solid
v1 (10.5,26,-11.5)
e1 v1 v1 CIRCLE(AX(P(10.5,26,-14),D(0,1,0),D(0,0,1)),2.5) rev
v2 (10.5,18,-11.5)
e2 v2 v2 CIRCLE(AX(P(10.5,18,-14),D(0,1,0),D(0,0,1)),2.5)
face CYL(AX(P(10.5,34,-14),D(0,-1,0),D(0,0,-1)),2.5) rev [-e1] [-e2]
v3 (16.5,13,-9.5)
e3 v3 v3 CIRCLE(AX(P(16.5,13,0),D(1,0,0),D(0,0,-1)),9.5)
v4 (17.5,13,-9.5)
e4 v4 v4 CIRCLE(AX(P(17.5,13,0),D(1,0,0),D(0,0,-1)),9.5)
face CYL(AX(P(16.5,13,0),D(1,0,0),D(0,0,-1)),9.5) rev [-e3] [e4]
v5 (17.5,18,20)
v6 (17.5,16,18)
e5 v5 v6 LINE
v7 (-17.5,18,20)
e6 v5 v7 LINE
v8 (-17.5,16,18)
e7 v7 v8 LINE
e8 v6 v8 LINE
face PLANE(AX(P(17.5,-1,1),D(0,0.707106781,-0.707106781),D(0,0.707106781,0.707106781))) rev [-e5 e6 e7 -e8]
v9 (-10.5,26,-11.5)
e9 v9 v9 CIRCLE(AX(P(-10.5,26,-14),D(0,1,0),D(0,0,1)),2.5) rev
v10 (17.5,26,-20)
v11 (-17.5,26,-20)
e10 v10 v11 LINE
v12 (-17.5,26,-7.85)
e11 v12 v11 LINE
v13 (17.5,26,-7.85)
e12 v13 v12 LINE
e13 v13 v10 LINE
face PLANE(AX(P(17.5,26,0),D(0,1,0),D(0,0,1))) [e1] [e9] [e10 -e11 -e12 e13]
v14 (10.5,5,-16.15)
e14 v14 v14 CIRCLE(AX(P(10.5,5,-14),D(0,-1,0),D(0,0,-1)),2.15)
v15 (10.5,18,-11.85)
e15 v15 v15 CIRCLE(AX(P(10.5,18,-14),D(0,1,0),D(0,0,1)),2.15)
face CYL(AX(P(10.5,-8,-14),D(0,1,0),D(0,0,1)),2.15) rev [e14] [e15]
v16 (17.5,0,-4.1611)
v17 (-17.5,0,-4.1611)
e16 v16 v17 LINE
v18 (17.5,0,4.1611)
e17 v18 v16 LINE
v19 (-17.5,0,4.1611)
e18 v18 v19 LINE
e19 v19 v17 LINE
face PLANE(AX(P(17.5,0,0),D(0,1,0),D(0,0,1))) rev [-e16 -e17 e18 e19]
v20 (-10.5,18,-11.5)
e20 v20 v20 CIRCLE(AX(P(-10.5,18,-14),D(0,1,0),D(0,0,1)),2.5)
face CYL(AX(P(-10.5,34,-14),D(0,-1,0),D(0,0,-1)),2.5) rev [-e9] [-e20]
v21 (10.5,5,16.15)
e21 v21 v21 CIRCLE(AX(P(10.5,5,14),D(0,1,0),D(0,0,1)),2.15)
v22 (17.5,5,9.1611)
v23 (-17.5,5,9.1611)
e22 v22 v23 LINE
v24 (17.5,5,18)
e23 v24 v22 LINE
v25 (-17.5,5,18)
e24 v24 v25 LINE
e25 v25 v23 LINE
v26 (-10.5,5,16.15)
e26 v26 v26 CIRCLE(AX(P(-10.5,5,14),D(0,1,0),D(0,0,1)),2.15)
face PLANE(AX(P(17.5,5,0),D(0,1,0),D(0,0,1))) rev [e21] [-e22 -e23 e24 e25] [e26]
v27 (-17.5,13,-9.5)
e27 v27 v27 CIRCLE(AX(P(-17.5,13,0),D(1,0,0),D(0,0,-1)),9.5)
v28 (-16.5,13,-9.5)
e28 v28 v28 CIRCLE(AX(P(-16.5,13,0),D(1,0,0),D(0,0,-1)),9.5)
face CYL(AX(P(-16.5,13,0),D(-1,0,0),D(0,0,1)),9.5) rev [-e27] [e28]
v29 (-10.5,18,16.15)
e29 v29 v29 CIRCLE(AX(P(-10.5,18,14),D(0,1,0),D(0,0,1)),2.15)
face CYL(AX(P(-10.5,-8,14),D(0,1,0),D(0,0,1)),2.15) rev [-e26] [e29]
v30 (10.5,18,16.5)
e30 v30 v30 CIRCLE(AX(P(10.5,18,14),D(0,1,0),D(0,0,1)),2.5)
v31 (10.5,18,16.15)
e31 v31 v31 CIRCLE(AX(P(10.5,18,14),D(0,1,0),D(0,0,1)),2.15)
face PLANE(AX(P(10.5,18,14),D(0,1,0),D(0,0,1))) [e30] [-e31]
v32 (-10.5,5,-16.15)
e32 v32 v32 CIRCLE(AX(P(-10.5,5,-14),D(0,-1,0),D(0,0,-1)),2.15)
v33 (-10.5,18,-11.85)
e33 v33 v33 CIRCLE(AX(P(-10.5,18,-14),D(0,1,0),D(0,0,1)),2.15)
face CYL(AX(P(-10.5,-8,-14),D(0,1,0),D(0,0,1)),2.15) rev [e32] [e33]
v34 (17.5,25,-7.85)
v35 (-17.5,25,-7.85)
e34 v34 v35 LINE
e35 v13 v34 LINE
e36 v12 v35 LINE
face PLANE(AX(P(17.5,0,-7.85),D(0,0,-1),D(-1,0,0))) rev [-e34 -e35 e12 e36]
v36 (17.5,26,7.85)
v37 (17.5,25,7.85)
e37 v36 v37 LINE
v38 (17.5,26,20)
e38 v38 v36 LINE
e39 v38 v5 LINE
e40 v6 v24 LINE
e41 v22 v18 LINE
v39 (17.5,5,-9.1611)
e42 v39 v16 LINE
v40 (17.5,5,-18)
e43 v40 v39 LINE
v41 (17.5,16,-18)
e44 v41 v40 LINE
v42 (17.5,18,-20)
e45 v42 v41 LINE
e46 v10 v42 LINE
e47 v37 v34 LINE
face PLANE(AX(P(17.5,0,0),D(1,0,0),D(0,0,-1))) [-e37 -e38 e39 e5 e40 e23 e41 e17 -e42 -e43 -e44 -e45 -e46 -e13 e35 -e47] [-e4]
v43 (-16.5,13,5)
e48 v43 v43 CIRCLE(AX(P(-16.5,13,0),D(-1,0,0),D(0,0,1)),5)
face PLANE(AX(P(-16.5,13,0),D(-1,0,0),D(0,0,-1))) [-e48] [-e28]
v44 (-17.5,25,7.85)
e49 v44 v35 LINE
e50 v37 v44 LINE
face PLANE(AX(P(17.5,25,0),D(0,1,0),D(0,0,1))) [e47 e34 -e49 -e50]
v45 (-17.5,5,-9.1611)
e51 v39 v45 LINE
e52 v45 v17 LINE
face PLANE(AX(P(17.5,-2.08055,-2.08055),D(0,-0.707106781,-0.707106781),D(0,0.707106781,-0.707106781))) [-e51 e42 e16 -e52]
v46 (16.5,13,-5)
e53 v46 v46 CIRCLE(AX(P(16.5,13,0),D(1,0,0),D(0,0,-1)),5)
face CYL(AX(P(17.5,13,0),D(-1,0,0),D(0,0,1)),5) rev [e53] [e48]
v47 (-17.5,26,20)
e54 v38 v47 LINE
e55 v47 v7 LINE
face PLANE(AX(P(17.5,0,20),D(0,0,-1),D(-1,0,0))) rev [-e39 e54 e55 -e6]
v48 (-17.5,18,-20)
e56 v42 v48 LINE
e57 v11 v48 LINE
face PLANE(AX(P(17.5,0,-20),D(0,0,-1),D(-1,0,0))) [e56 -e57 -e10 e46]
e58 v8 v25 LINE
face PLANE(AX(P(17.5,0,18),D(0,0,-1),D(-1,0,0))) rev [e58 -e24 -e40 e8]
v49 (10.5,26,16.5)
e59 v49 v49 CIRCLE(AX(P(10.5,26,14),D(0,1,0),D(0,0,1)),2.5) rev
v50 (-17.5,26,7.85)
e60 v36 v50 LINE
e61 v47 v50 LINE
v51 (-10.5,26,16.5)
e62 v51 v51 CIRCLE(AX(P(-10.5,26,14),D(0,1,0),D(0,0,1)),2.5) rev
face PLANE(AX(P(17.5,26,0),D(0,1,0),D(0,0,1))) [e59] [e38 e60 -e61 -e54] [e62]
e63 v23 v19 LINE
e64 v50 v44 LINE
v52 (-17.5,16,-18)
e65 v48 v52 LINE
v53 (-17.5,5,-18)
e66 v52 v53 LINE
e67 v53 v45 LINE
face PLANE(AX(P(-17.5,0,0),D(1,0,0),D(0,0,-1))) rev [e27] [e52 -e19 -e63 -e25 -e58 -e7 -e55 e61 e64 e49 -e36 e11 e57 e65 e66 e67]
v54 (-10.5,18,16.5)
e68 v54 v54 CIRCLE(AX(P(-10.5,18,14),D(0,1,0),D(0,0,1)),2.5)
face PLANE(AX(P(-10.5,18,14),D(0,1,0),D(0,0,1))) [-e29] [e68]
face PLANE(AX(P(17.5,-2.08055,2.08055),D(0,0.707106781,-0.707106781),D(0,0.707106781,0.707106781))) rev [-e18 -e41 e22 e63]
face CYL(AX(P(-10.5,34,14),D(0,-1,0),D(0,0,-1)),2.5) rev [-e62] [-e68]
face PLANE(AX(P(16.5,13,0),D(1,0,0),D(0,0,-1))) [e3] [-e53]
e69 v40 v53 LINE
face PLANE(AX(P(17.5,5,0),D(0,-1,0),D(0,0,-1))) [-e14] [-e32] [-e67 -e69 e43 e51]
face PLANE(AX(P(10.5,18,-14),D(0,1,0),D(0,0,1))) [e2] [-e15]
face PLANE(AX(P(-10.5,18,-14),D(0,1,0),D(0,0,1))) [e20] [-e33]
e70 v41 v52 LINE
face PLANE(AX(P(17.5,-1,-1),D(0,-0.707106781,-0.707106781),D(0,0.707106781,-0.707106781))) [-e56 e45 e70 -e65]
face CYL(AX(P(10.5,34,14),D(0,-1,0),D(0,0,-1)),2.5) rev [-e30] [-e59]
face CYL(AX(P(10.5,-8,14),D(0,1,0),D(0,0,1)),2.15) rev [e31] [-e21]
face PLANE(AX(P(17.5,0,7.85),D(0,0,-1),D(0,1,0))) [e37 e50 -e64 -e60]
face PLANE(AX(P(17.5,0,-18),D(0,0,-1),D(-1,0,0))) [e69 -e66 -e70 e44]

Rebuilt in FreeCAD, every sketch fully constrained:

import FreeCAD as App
import Part
import Sketcher
from FreeCAD import Vector

doc = App.newDocument("Part")
body = doc.addObject("PartDesign::Body", "Body")

sketch1 = body.newObject("Sketcher::SketchObject", "Sketch")
sketch1.AttachmentSupport = (doc.getObject("YZ_Plane"), [""])
sketch1.MapMode = "FlatFace"
sketch1.addGeometry(Part.LineSegment(Vector(26, 7.8, 0), Vector(26, 20, 0)), False)
sketch1.addGeometry(Part.LineSegment(Vector(26, 20, 0), Vector(18, 20, 0)), False)
sketch1.addGeometry(Part.LineSegment(Vector(18, 20, 0), Vector(16, 18, 0)), False)
sketch1.addGeometry(Part.LineSegment(Vector(16, 18, 0), Vector(5, 18, 0)), False)
sketch1.addGeometry(Part.LineSegment(Vector(5, 18, 0), Vector(5, 9.2, 0)), False)
sketch1.addGeometry(Part.LineSegment(Vector(5, 9.2, 0), Vector(0, 4.2, 0)), False)
sketch1.addGeometry(Part.LineSegment(Vector(0, 4.2, 0), Vector(0, -4.2, 0)), False)
sketch1.addGeometry(Part.LineSegment(Vector(0, -4.2, 0), Vector(5, -9.2, 0)), False)
sketch1.addGeometry(Part.LineSegment(Vector(5, -9.2, 0), Vector(5, -18, 0)), False)
sketch1.addGeometry(Part.LineSegment(Vector(5, -18, 0), Vector(16, -18, 0)), False)
sketch1.addGeometry(Part.LineSegment(Vector(16, -18, 0), Vector(18, -20, 0)), False)
sketch1.addGeometry(Part.LineSegment(Vector(18, -20, 0), Vector(26, -20, 0)), False)
sketch1.addGeometry(Part.LineSegment(Vector(26, -20, 0), Vector(26, -7.8, 0)), False)
sketch1.addGeometry(Part.LineSegment(Vector(26, -7.8, 0), Vector(25, -7.8, 0)), False)
sketch1.addGeometry(Part.LineSegment(Vector(25, -7.8, 0), Vector(25, 7.8, 0)), False)
sketch1.addGeometry(Part.LineSegment(Vector(25, 7.8, 0), Vector(26, 7.8, 0)), False)
sketch1.addGeometry(Part.Circle(Vector(13, 0, 0), Vector(0, 0, 1), 5), False)
sketch1.addConstraint(Sketcher.Constraint("Coincident", 0, 2, 1, 1))
sketch1.addConstraint(Sketcher.Constraint("Coincident", 1, 2, 2, 1))
sketch1.addConstraint(Sketcher.Constraint("Coincident", 2, 2, 3, 1))
sketch1.addConstraint(Sketcher.Constraint("Coincident", 3, 2, 4, 1))
sketch1.addConstraint(Sketcher.Constraint("Coincident", 4, 2, 5, 1))
sketch1.addConstraint(Sketcher.Constraint("Coincident", 5, 2, 6, 1))
sketch1.addConstraint(Sketcher.Constraint("Coincident", 6, 2, 7, 1))
sketch1.addConstraint(Sketcher.Constraint("Coincident", 7, 2, 8, 1))
sketch1.addConstraint(Sketcher.Constraint("Coincident", 8, 2, 9, 1))
sketch1.addConstraint(Sketcher.Constraint("Coincident", 9, 2, 10, 1))
sketch1.addConstraint(Sketcher.Constraint("Coincident", 10, 2, 11, 1))
sketch1.addConstraint(Sketcher.Constraint("Coincident", 11, 2, 12, 1))
sketch1.addConstraint(Sketcher.Constraint("Coincident", 12, 2, 13, 1))
sketch1.addConstraint(Sketcher.Constraint("Coincident", 13, 2, 14, 1))
sketch1.addConstraint(Sketcher.Constraint("Coincident", 14, 2, 15, 1))
sketch1.addConstraint(Sketcher.Constraint("Coincident", 15, 2, 0, 1))
sketch1.addConstraint(Sketcher.Constraint("Vertical", 0))
sketch1.addConstraint(Sketcher.Constraint("Horizontal", 1))
sketch1.addConstraint(Sketcher.Constraint("Horizontal", 3))
sketch1.addConstraint(Sketcher.Constraint("Vertical", 4))
sketch1.addConstraint(Sketcher.Constraint("Vertical", 6))
sketch1.addConstraint(Sketcher.Constraint("Vertical", 8))
sketch1.addConstraint(Sketcher.Constraint("Horizontal", 9))
sketch1.addConstraint(Sketcher.Constraint("Horizontal", 11))
sketch1.addConstraint(Sketcher.Constraint("Vertical", 12))
sketch1.addConstraint(Sketcher.Constraint("Horizontal", 13))
sketch1.addConstraint(Sketcher.Constraint("Vertical", 14))
sketch1.addConstraint(Sketcher.Constraint("Horizontal", 15))
sketch1.addConstraint(Sketcher.Constraint("Symmetric", 5, 2, 6, 2, -1, 1))
sketch1.addConstraint(Sketcher.Constraint("Symmetric", 4, 2, 7, 2, -1))
sketch1.addConstraint(Sketcher.Constraint("Symmetric", 2, 2, 9, 2, -1))
sketch1.addConstraint(Sketcher.Constraint("Symmetric", 1, 2, 10, 2, -1))
sketch1.addConstraint(Sketcher.Constraint("Symmetric", 12, 2, 15, 2, -1))
sketch1.addConstraint(Sketcher.Constraint("PointOnObject", 16, 3, -1))
sketch1.addConstraint(Sketcher.Constraint("Parallel", 2, 5))
sketch1.addConstraint(Sketcher.Constraint("Perpendicular", 5, 7))
sketch1.addConstraint(Sketcher.Constraint("Diameter", 16, 10.0))
sketch1.addConstraint(Sketcher.Constraint("DistanceX", 1, 2, 1, 1, 8.0))
sketch1.addConstraint(Sketcher.Constraint("DistanceX", 3, 2, 3, 1, 11.0))
sketch1.addConstraint(Sketcher.Constraint("DistanceX", 13, 2, 13, 1, 1.0))
sketch1.addConstraint(Sketcher.Constraint("DistanceY", 14, 1, 14, 2, 15.7))
sketch1.addConstraint(Sketcher.Constraint("DistanceX", -1, 1, 16, 3, 13.0))
sketch1.addConstraint(Sketcher.Constraint("DistanceX", -1, 1, 0, 2, 26.0))
sketch1.addConstraint(Sketcher.Constraint("DistanceY", -1, 1, 0, 2, 20.0))
sketch1.addConstraint(Sketcher.Constraint("DistanceX", -1, 1, 2, 2, 16.0))
sketch1.addConstraint(Sketcher.Constraint("DistanceY", 4, 2, 4, 1, 8.8389))
pad1 = body.newObject("PartDesign::Pad", "Pad")
pad1.Profile = sketch1
pad1.Length = 35
pad1.Midplane = True

sketch2 = body.newObject("Sketcher::SketchObject", "Sketch001")
sketch2.AttachmentSupport = (doc.getObject("XZ_Plane"), [""])
sketch2.MapMode = "FlatFace"
sketch2.AttachmentOffset = App.Placement(Vector(0, 0, -18), App.Rotation())
sketch2.addGeometry(Part.Circle(Vector(10.5, 14, 0), Vector(0, 0, 1), 2.5), False)
sketch2.addGeometry(Part.Circle(Vector(-10.5, 14, 0), Vector(0, 0, 1), 2.5), False)
sketch2.addGeometry(Part.Circle(Vector(10.5, -14, 0), Vector(0, 0, 1), 2.5), False)
sketch2.addGeometry(Part.Circle(Vector(-10.5, -14, 0), Vector(0, 0, 1), 2.5), False)
sketch2.addConstraint(Sketcher.Constraint("Equal", 0, 1))
sketch2.addConstraint(Sketcher.Constraint("Equal", 1, 2))
sketch2.addConstraint(Sketcher.Constraint("Equal", 2, 3))
sketch2.addConstraint(Sketcher.Constraint("Symmetric", 1, 3, 2, 3, -1, 1))
sketch2.addConstraint(Sketcher.Constraint("Symmetric", 0, 3, 3, 3, -1, 1))
sketch2.addConstraint(Sketcher.Constraint("Symmetric", 0, 3, 1, 3, -2))
sketch2.addConstraint(Sketcher.Constraint("Diameter", 0, 5.0))
sketch2.addConstraint(Sketcher.Constraint("DistanceY", -1, 1, 0, 3, 14.0))
sketch2.addConstraint(Sketcher.Constraint("DistanceX", 1, 3, 0, 3, 21.0))
pocket1 = body.newObject("PartDesign::Pocket", "Pocket")
pocket1.Profile = sketch2
pocket1.Length = 16

sketch3 = body.newObject("Sketcher::SketchObject", "Sketch002")
sketch3.AttachmentSupport = (doc.getObject("XZ_Plane"), [""])
sketch3.MapMode = "FlatFace"
sketch3.AttachmentOffset = App.Placement(Vector(0, 0, -18), App.Rotation())
sketch3.addGeometry(Part.Circle(Vector(10.5, 14, 0), Vector(0, 0, 1), 2.1), False)
sketch3.addGeometry(Part.Circle(Vector(-10.5, 14, 0), Vector(0, 0, 1), 2.1), False)
sketch3.addGeometry(Part.Circle(Vector(-10.5, -14, 0), Vector(0, 0, 1), 2.1), False)
sketch3.addGeometry(Part.Circle(Vector(10.5, -14, 0), Vector(0, 0, 1), 2.1), False)
sketch3.addConstraint(Sketcher.Constraint("Equal", 0, 1))
sketch3.addConstraint(Sketcher.Constraint("Equal", 1, 2))
sketch3.addConstraint(Sketcher.Constraint("Equal", 2, 3))
sketch3.addConstraint(Sketcher.Constraint("Symmetric", 0, 3, 2, 3, -1, 1))
sketch3.addConstraint(Sketcher.Constraint("Symmetric", 1, 3, 3, 3, -1, 1))
sketch3.addConstraint(Sketcher.Constraint("Symmetric", 0, 3, 1, 3, -2))
sketch3.addConstraint(Sketcher.Constraint("Diameter", 0, 4.3))
sketch3.addConstraint(Sketcher.Constraint("DistanceY", -1, 1, 0, 3, 14.0))
sketch3.addConstraint(Sketcher.Constraint("DistanceX", 1, 3, 0, 3, 21.0))
pocket2 = body.newObject("PartDesign::Pocket", "Pocket001")
pocket2.Profile = sketch3
pocket2.Length = 26
pocket2.Reversed = True

sketch4 = body.newObject("Sketcher::SketchObject", "Sketch003")
sketch4.AttachmentSupport = (doc.getObject("YZ_Plane"), [""])
sketch4.MapMode = "FlatFace"
sketch4.AttachmentOffset = App.Placement(Vector(0, 0, 17.5), App.Rotation())
sketch4.addGeometry(Part.Circle(Vector(13, 0, 0), Vector(0, 0, 1), 10), False)
sketch4.addConstraint(Sketcher.Constraint("PointOnObject", 0, 3, -1))
sketch4.addConstraint(Sketcher.Constraint("Diameter", 0, 19.0))
sketch4.addConstraint(Sketcher.Constraint("DistanceX", -1, 1, 0, 3, 13.0))
pocket3 = body.newObject("PartDesign::Pocket", "Pocket002")
pocket3.Profile = sketch4
pocket3.Length = 1
doc.recompute()

mirrored = body.newObject("PartDesign::Mirrored", "Mirrored")
mirrored.Originals = [pocket3]
mirrored.MirrorPlane = (doc.getObject("YZ_Plane"), [""])
body.Tip = mirrored

doc.recompute()
